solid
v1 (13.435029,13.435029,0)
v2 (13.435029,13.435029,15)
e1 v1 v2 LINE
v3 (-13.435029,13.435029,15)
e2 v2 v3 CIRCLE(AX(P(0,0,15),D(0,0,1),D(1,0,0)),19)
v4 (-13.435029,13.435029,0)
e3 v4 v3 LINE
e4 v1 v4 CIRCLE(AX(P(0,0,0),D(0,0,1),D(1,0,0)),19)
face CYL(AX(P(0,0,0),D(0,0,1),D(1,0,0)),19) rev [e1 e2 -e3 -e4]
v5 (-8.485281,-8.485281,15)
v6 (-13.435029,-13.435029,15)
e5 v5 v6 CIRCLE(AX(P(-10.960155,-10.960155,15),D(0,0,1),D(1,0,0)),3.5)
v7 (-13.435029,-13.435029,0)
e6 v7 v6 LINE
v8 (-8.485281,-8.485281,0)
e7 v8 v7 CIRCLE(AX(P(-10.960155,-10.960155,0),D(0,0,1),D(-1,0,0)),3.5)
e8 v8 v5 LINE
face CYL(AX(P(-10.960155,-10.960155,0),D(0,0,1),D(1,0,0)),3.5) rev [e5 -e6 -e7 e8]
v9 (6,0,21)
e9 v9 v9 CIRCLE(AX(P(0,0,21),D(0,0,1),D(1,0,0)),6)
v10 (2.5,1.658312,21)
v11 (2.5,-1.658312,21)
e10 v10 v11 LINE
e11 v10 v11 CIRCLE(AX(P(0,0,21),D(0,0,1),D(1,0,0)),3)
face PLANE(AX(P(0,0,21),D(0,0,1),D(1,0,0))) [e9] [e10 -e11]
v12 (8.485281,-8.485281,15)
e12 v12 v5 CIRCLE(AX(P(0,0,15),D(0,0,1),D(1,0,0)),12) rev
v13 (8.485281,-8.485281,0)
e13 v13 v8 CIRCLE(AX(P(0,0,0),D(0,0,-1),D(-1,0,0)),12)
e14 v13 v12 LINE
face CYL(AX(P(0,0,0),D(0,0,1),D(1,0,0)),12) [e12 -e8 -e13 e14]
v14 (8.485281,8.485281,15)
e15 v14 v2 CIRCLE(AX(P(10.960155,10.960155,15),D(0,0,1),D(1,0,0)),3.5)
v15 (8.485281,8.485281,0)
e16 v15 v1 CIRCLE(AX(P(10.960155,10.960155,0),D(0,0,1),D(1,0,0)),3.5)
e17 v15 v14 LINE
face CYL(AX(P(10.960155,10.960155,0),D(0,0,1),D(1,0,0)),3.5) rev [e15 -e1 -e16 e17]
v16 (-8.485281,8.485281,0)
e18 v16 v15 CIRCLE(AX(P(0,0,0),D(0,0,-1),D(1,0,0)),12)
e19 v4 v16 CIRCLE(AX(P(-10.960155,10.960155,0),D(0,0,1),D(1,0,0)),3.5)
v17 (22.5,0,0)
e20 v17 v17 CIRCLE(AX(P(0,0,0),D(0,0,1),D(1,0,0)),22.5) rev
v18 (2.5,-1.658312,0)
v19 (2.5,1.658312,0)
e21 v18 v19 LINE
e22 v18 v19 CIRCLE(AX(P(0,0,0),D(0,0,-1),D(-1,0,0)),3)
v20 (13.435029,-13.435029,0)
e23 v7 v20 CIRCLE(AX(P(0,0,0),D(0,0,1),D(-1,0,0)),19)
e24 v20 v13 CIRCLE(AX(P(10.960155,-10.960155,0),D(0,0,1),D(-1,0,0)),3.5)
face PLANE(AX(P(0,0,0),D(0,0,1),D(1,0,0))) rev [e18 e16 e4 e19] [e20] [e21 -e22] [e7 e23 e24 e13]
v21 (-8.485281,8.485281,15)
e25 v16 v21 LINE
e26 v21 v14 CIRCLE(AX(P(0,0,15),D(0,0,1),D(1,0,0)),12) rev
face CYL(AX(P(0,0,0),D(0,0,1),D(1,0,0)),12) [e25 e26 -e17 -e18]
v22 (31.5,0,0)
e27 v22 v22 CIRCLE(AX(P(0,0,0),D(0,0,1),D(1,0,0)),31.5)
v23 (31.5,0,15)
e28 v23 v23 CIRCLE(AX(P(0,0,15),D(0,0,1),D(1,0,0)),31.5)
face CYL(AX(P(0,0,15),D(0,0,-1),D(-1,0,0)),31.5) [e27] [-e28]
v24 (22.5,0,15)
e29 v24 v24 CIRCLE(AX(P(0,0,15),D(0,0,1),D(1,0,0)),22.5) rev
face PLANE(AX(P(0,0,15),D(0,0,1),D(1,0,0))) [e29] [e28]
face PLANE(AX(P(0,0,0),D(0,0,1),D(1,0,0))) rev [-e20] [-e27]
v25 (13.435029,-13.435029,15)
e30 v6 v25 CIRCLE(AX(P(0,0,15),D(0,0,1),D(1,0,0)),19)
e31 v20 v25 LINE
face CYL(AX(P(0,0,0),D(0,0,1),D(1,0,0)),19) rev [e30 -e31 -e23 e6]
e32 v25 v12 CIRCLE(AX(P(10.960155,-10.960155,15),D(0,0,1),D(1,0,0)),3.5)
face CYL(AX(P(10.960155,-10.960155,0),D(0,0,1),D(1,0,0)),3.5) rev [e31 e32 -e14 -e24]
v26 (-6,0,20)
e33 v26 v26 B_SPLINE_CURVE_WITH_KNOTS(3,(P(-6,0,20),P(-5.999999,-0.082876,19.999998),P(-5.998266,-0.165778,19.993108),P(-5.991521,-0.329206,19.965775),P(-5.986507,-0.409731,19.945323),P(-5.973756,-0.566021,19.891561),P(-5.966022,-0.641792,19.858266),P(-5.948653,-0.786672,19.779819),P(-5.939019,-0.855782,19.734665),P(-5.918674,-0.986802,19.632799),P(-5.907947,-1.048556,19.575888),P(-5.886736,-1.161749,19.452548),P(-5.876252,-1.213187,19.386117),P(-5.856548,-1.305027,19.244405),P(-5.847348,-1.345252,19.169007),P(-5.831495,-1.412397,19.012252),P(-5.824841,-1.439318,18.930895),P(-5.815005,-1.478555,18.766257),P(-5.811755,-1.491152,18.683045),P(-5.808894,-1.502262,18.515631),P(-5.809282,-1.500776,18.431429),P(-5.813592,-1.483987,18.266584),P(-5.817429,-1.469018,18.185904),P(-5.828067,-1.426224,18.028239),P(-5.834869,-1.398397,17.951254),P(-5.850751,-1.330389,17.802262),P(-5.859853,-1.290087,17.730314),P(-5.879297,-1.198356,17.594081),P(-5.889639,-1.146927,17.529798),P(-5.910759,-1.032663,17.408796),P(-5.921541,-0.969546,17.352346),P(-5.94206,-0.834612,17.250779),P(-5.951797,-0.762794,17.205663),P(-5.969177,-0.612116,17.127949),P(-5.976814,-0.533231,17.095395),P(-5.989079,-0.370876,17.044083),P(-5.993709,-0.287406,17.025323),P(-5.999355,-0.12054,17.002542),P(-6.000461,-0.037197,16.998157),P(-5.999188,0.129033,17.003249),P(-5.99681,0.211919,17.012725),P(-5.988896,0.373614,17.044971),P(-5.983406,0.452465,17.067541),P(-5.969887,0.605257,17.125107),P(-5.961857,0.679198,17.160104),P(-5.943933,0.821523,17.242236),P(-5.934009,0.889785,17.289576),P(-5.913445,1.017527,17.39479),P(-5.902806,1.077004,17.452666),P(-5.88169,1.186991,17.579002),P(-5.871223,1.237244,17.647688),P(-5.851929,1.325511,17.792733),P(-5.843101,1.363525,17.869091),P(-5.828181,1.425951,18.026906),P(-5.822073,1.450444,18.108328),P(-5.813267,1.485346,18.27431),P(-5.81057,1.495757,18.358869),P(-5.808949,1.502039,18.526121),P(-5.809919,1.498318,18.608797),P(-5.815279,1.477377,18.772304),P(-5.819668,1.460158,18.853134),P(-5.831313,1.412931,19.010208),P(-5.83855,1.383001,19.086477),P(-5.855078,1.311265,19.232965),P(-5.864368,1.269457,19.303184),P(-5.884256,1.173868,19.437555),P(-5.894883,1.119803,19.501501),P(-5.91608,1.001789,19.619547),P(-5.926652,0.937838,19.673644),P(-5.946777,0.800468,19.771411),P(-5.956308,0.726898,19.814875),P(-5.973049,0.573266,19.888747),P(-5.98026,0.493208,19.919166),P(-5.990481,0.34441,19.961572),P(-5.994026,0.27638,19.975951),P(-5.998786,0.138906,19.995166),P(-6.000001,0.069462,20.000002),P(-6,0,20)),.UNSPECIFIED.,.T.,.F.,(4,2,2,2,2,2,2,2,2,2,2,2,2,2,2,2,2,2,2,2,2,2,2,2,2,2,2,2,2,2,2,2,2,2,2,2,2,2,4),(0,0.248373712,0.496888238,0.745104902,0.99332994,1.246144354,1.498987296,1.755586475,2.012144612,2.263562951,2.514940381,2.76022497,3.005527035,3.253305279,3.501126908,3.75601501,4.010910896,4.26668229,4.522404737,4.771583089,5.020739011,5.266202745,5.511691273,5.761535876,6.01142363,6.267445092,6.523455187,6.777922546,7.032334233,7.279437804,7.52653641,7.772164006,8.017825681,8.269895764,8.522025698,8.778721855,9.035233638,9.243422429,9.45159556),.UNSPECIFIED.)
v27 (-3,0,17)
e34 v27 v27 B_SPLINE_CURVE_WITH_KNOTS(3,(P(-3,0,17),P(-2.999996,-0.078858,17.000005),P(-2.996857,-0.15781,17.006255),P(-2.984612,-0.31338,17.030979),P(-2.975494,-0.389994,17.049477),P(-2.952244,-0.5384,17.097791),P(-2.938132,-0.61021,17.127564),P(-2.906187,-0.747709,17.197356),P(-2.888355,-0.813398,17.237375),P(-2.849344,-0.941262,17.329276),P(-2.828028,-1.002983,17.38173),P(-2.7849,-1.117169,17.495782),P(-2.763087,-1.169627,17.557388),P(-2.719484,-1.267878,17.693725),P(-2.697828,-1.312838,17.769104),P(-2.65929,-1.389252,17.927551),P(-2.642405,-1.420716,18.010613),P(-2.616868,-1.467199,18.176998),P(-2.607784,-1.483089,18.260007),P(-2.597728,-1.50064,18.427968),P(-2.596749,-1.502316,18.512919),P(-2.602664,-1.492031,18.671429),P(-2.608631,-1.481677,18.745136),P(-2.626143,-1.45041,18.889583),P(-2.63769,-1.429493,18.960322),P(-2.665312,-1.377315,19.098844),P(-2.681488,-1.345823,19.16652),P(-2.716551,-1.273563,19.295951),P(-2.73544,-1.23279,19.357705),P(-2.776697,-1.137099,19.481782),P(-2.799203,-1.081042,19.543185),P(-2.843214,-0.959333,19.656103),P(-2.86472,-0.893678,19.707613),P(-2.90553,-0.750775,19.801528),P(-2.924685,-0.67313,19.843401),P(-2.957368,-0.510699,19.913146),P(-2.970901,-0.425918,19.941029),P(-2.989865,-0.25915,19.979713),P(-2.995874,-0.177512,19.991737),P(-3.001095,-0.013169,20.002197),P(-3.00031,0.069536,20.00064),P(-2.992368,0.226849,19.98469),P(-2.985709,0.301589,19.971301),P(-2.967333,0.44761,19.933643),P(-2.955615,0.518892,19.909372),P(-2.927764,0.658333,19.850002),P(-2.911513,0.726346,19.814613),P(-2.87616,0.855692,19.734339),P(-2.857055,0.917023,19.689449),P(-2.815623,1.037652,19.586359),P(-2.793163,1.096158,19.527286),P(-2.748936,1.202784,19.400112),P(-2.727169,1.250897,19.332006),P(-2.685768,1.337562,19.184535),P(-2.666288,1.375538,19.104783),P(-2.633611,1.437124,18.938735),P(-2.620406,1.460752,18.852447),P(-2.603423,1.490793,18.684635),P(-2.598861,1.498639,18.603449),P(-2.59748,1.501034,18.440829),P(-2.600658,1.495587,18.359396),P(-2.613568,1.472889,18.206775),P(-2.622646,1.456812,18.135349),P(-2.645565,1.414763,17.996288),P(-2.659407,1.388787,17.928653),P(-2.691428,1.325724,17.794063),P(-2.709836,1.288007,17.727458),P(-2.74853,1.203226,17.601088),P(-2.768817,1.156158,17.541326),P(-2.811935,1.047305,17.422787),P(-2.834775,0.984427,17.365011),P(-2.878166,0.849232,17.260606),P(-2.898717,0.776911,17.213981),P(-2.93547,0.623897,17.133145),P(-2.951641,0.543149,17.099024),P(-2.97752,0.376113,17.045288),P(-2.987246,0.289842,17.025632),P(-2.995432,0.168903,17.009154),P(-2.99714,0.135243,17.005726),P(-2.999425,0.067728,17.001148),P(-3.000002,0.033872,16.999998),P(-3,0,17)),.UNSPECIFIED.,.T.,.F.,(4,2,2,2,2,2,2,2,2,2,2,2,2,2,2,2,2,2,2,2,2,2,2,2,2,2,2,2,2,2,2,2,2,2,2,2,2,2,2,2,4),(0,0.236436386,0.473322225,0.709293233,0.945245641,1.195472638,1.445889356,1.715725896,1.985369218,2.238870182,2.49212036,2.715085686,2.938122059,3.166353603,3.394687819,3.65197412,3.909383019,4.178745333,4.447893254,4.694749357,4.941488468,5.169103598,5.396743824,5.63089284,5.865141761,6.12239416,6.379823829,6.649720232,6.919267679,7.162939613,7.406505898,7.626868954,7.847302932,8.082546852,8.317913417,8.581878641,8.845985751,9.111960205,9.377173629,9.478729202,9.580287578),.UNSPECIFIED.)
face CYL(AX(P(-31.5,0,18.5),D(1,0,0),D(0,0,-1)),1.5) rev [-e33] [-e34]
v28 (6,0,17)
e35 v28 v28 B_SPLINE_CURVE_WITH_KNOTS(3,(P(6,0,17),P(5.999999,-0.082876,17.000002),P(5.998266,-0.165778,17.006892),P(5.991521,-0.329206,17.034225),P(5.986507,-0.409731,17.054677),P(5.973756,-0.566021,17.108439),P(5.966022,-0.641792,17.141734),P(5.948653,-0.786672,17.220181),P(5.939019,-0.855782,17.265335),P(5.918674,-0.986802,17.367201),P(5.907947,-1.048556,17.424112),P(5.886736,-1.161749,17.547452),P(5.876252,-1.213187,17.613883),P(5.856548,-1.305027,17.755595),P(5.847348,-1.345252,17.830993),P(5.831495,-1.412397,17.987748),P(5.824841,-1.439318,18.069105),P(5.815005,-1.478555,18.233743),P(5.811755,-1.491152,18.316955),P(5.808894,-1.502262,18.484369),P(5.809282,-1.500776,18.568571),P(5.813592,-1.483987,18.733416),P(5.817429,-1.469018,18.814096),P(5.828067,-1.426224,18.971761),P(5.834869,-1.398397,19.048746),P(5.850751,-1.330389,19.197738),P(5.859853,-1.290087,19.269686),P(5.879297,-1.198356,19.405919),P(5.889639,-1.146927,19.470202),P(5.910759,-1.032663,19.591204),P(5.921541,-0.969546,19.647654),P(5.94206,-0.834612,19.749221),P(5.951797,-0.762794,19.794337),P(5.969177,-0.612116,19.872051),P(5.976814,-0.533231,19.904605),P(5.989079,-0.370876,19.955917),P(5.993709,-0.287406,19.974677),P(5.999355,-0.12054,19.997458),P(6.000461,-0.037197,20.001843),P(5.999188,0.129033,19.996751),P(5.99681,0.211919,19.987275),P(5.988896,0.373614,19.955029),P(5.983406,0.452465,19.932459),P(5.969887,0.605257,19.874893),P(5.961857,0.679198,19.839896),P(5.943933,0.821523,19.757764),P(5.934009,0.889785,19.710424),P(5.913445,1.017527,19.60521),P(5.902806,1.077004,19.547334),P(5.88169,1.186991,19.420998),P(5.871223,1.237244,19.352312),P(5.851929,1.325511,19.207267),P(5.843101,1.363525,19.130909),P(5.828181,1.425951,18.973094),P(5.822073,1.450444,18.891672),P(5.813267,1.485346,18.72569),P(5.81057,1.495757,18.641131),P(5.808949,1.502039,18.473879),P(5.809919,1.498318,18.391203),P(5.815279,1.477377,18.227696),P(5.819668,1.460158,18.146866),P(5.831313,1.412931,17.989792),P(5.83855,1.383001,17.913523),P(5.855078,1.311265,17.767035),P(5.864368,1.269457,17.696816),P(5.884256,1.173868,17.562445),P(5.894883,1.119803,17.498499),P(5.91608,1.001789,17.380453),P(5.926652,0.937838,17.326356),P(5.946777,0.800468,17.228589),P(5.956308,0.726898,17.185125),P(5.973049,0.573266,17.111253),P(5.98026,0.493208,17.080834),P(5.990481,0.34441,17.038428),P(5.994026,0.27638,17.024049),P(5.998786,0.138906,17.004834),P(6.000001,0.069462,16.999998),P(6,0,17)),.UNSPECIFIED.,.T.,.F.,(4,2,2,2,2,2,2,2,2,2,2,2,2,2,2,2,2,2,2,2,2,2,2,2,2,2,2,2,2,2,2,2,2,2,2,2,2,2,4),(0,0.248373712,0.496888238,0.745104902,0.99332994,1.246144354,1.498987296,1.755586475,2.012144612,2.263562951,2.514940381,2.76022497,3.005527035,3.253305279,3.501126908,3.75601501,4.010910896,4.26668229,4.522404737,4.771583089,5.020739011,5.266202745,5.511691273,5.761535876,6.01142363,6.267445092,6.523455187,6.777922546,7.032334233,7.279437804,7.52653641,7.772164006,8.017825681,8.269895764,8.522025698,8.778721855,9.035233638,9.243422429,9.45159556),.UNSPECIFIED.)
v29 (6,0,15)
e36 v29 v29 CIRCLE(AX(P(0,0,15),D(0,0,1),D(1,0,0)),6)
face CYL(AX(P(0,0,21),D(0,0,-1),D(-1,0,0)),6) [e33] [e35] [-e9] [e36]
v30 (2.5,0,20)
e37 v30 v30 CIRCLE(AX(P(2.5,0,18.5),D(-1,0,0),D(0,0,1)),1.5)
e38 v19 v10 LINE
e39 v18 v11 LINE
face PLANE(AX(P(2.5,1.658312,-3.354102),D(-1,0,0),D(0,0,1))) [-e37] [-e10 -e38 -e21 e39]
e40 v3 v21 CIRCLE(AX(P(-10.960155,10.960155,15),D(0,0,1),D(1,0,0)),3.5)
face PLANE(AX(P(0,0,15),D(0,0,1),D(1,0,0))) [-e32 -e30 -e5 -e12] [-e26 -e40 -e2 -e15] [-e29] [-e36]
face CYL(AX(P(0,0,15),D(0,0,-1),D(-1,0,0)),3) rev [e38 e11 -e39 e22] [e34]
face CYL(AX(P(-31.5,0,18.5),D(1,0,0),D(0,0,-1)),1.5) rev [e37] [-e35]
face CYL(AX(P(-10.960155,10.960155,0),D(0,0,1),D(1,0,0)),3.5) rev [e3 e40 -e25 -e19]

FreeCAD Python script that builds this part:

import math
import FreeCAD as App
import Part
import Sketcher

V = App.Vector

doc = App.newDocument("Part")
params = doc.addObject("Spreadsheet::Sheet", "Params")
for row, (alias, value) in enumerate([
    ("sketch1_diameter", "63 mm"),
    ("pad1_length", "15 mm"),
    ("sketch2_diameter", "6 mm"),
    ("sketch3_diameter", "12 mm"),
    ("sketch3_diameter2", "6 mm"),
    ("pad2_length", "6 mm"),
    ("sketch4_radius", "3 mm"),
    ("pad3_length", "21 mm"),
    ("sketch5_diameter", "3 mm"),
    ("sketch6_radius", "12 mm"),
    ("sketch6_radius2", "19 mm"),
], start=1):
    params.set(f"A{row}", alias)
    params.set(f"B{row}", "=" + value)
    params.setAlias(f"B{row}", alias)

body = doc.addObject("PartDesign::Body", "Body")

# Sketch on XY plane
sketch1 = body.newObject("Sketcher::SketchObject", "Sketch")
sketch1.AttachmentSupport = (doc.getObject("XY_Plane"), [""])
sketch1.MapMode = "FlatFace"
sketch1.addGeometry(Part.Circle(V(0, 0, 0), V(0, 0, 1), 32), False)
sketch1.addConstraint(Sketcher.Constraint("Coincident", 0, 3, -1, 1))
sketch1.addConstraint(Sketcher.Constraint("Diameter", 0, 63.0))
sketch1.setExpression("Constraints[1]", "Params.sketch1_diameter")
pad1 = body.newObject("PartDesign::Pad", "Pad")
pad1.Profile = sketch1
pad1.setExpression("Length", "Params.pad1_length")

# Sketch on XY plane
sketch2 = body.newObject("Sketcher::SketchObject", "Sketch001")
sketch2.AttachmentSupport = (doc.getObject("XY_Plane"), [""])
sketch2.MapMode = "FlatFace"
sketch2.addGeometry(Part.Circle(V(0, 0, 0), V(0, 0, 1), 3), False)
sketch2.addConstraint(Sketcher.Constraint("Coincident", 0, 3, -1, 1))
sketch2.addConstraint(Sketcher.Constraint("Diameter", 0, 6.0))
sketch2.setExpression("Constraints[1]", "Params.sketch2_diameter")
pocket1 = body.newObject("PartDesign::Pocket", "Pocket")
pocket1.Profile = sketch2
pocket1.Type = "ThroughAll"
pocket1.Reversed = True

# Sketch on XY plane
sketch3 = body.newObject("Sketcher::SketchObject", "Sketch002")
sketch3.AttachmentSupport = (doc.getObject("XY_Plane"), [""])
sketch3.MapMode = "FlatFace"
sketch3.AttachmentOffset = App.Placement(V(0, 0, 15), App.Rotation())
sketch3.addGeometry(Part.Circle(V(0, 0, 0), V(0, 0, 1), 6), False)
sketch3.addGeometry(Part.Circle(V(0, 0, 0), V(0, 0, 1), 3), False)
sketch3.addConstraint(Sketcher.Constraint("Coincident", 0, 3, -1, 1))
sketch3.addConstraint(Sketcher.Constraint("Coincident", 1, 3, -1, 1))
sketch3.addConstraint(Sketcher.Constraint("Diameter", 0, 12.0))
sketch3.addConstraint(Sketcher.Constraint("Diameter", 1, 6.0))
sketch3.setExpression("Constraints[2]", "Params.sketch3_diameter")
sketch3.setExpression("Constraints[3]", "Params.sketch3_diameter2")
pad2 = body.newObject("PartDesign::Pad", "Pad001")
pad2.Profile = sketch3
pad2.setExpression("Length", "Params.pad2_length")

# Sketch on XY plane
sketch4 = body.newObject("Sketcher::SketchObject", "Sketch003")
sketch4.AttachmentSupport = (doc.getObject("XY_Plane"), [""])
sketch4.MapMode = "FlatFace"
sketch4.addGeometry(Part.LineSegment(V(2.5, 1.7, 0), V(2.5, -1.7, 0)), False)
sketch4.addGeometry(Part.ArcOfCircle(Part.Circle(V(0, 0, 0), V(0, 0, 1), 3), math.radians(-34), math.radians(34)), False)
sketch4.addConstraint(Sketcher.Constraint("Coincident", 0, 1, 1, 2))
sketch4.addConstraint(Sketcher.Constraint("Coincident", 1, 1, 0, 2))
sketch4.addConstraint(Sketcher.Constraint("Vertical", 0))
sketch4.addConstraint(Sketcher.Constraint("Coincident", 1, 3, -1, 1))
sketch4.addConstraint(Sketcher.Constraint("Radius", 1, 3.0))
sketch4.addConstraint(Sketcher.Constraint("DistanceX", -1, 1, 0, 1, 2.5))
sketch4.setExpression("Constraints[4]", "Params.sketch4_radius")
pad3 = body.newObject("PartDesign::Pad", "Pad002")
pad3.Profile = sketch4
pad3.setExpression("Length", "Params.pad3_length")

# Sketch on YZ plane
sketch5 = body.newObject("Sketcher::SketchObject", "Sketch004")
sketch5.AttachmentSupport = (doc.getObject("YZ_Plane"), [""])
sketch5.MapMode = "FlatFace"
sketch5.addGeometry(Part.Circle(V(0, 18.5, 0), V(0, 0, 1), 1.5), False)
sketch5.addConstraint(Sketcher.Constraint("PointOnObject", 0, 3, -2))
sketch5.addConstraint(Sketcher.Constraint("Diameter", 0, 3.0))
sketch5.addConstraint(Sketcher.Constraint("DistanceY", -1, 1, 0, 3, 18.5))
sketch5.setExpression("Constraints[1]", "Params.sketch5_diameter")
pocket2 = body.newObject("PartDesign::Pocket", "Pocket001")
pocket2.Profile = sketch5
pocket2.Type = "ThroughAll"
pocket2.Midplane = True

# Sketch on XY plane
sketch6 = body.newObject("Sketcher::SketchObject", "Sketch005")
sketch6.AttachmentSupport = (doc.getObject("XY_Plane"), [""])
sketch6.MapMode = "FlatFace"
sketch6.AttachmentOffset = App.Placement(V(0, 0, 15), App.Rotation())
sketch6.addGeometry(Part.ArcOfCircle(Part.Circle(V(0, 0, 0), V(0, 0, 1), 12), math.radians(45), math.radians(135)), False)
sketch6.addGeometry(Part.ArcOfCircle(Part.Circle(V(11, 11, 0), V(0, 0, 1), 3.5), math.radians(-135), math.radians(45)), False)
sketch6.addGeometry(Part.ArcOfCircle(Part.Circle(V(0, 0, 0), V(0, 0, 1), 19), math.radians(45), math.radians(135)), False)
sketch6.addGeometry(Part.ArcOfCircle(Part.Circle(V(-11, 11, 0), V(0, 0, 1), 3.5), math.radians(135), math.radians(315)), False)
sketch6.addGeometry(Part.ArcOfCircle(Part.Circle(V(11, -11, 0), V(0, 0, 1), 3.5), math.radians(-45), math.radians(135)), False)
sketch6.addGeometry(Part.ArcOfCircle(Part.Circle(V(0, 0, 0), V(0, 0, 1), 12), math.radians(-135), math.radians(-45)), False)
sketch6.addGeometry(Part.ArcOfCircle(Part.Circle(V(-11, -11, 0), V(0, 0, 1), 3.5), math.radians(45), math.radians(225)), False)
sketch6.addGeometry(Part.ArcOfCircle(Part.Circle(V(0, 0, 0), V(0, 0, 1), 19), math.radians(-135), math.radians(-45)), False)
sketch6.addConstraint(Sketcher.Constraint("Tangent", 0, 1, 1, 1))
sketch6.addConstraint(Sketcher.Constraint("Tangent", 1, 2, 2, 1))
sketch6.addConstraint(Sketcher.Constraint("Tangent", 2, 2, 3, 1))
sketch6.addConstraint(Sketcher.Constraint("Tangent", 3, 2, 0, 2))
sketch6.addConstraint(Sketcher.Constraint("Tangent", 4, 2, 5, 2))
sketch6.addConstraint(Sketcher.Constraint("Tangent", 5, 1, 6, 1))
sketch6.addConstraint(Sketcher.Constraint("Tangent", 6, 2, 7, 1))
sketch6.addConstraint(Sketcher.Constraint("Tangent", 7, 2, 4, 1))
sketch6.addConstraint(Sketcher.Constraint("Coincident", 0, 3, -1, 1))
sketch6.addConstraint(Sketcher.Constraint("Coincident", 2, 3, -1, 1))
sketch6.addConstraint(Sketcher.Constraint("Coincident", 5, 3, -1, 1))
sketch6.addConstraint(Sketcher.Constraint("Coincident", 7, 3, -1, 1))
sketch6.addConstraint(Sketcher.Constraint("Equal", 3, 4))
sketch6.addConstraint(Sketcher.Constraint("Equal", 0, 5))
sketch6.addConstraint(Sketcher.Constraint("Horizontal", 1, 3, 3, 3))
sketch6.addConstraint(Sketcher.Constraint("Horizontal", 4, 3, 6, 3))
sketch6.addConstraint(Sketcher.Constraint("Vertical", 1, 3, 4, 3))
sketch6.addConstraint(Sketcher.Constraint("Radius", 0, 12.0))
sketch6.addConstraint(Sketcher.Constraint("Radius", 2, 19.0))
sketch6.addConstraint(Sketcher.Constraint("DistanceX", -1, 1, 0, 1, 8.485281))
sketch6.setExpression("Constraints[17]", "Params.sketch6_radius")
sketch6.setExpression("Constraints[18]", "Params.sketch6_radius2")
pocket3 = body.newObject("PartDesign::Pocket", "Pocket002")
pocket3.Profile = sketch6
pocket3.Type = "ThroughAll"
pocket3.Midplane = True

doc.recompute()
